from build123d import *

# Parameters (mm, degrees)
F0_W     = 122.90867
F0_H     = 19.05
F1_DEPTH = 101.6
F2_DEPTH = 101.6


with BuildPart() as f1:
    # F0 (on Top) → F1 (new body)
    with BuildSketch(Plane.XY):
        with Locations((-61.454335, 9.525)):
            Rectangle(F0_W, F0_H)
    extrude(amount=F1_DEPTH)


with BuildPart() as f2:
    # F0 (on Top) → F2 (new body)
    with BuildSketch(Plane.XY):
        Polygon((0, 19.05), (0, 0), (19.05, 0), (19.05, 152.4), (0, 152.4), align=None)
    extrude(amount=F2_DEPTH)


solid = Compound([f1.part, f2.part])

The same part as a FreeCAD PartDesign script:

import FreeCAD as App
import Part
import Sketcher

V = App.Vector
Q = App.Units.Quantity


def add_polygon(sketch, points):
    """Adds a closed chain of lines whose ends are joined by coincident constraints."""
    first, n = sketch.GeometryCount, len(points)
    for a, b in zip(points, points[1:] + points[:1]):
        sketch.addGeometry(Part.LineSegment(App.Vector(*a, 0), App.Vector(*b, 0)), False)
    for i in range(n):
        sketch.addConstraint(Sketcher.Constraint("Coincident", first + i, 2, first + (i + 1) % n, 1))

doc = App.newDocument("Part")
body = doc.addObject("PartDesign::Body", "Body")

sketch1 = body.newObject("Sketcher::SketchObject", "Sketch")
sketch1.AttachmentSupport = (doc.getObject("XY_Plane"), [""])
sketch1.MapMode = "FlatFace"
add_polygon(sketch1, [(-122.90867, 19.05), (-122.90867, 0), (0, 0), (0, 19.05)])
sketch1.addConstraint([
    Sketcher.Constraint("Vertical", 0),
    Sketcher.Constraint("Horizontal", 1),
    Sketcher.Constraint("Vertical", 2),
    Sketcher.Constraint("Horizontal", 3),
    Sketcher.Constraint("Coincident", 1, 2, -1, 1),
    Sketcher.Constraint("DistanceY", 0, 2, 0, 1, Q("0.75 in")),
    Sketcher.Constraint("DistanceX", 1, 1, 1, 2, Q("122.90867 mm")),
])
pad1 = body.newObject("PartDesign::Pad", "Pad")
pad1.Profile = sketch1
pad1.Length = Q("4 in")
body2 = doc.addObject("PartDesign::Body", "Body001")

sketch2 = body2.newObject("Sketcher::SketchObject", "Sketch001")
sketch2.AttachmentSupport = (doc.getObject("XY_Plane001"), [""])
sketch2.MapMode = "FlatFace"
add_polygon(sketch2, [(0, 0), (19.05, 0), (19.05, 152.4), (0, 152.4)])
sketch2.addConstraint([
    Sketcher.Constraint("Horizontal", 0),
    Sketcher.Constraint("Vertical", 1),
    Sketcher.Constraint("Horizontal", 2),
    Sketcher.Constraint("Vertical", 3),
    Sketcher.Constraint("Coincident", 3, 2, -1, 1),
    Sketcher.Constraint("DistanceY", 1, 1, 1, 2, Q("6 in")),
    Sketcher.Constraint("DistanceX", 0, 1, 0, 2, Q("0.75 in")),
])
pad2 = body2.newObject("PartDesign::Pad", "Pad001")
pad2.Profile = sketch2
pad2.Length = Q("4 in")

doc.recompute()
